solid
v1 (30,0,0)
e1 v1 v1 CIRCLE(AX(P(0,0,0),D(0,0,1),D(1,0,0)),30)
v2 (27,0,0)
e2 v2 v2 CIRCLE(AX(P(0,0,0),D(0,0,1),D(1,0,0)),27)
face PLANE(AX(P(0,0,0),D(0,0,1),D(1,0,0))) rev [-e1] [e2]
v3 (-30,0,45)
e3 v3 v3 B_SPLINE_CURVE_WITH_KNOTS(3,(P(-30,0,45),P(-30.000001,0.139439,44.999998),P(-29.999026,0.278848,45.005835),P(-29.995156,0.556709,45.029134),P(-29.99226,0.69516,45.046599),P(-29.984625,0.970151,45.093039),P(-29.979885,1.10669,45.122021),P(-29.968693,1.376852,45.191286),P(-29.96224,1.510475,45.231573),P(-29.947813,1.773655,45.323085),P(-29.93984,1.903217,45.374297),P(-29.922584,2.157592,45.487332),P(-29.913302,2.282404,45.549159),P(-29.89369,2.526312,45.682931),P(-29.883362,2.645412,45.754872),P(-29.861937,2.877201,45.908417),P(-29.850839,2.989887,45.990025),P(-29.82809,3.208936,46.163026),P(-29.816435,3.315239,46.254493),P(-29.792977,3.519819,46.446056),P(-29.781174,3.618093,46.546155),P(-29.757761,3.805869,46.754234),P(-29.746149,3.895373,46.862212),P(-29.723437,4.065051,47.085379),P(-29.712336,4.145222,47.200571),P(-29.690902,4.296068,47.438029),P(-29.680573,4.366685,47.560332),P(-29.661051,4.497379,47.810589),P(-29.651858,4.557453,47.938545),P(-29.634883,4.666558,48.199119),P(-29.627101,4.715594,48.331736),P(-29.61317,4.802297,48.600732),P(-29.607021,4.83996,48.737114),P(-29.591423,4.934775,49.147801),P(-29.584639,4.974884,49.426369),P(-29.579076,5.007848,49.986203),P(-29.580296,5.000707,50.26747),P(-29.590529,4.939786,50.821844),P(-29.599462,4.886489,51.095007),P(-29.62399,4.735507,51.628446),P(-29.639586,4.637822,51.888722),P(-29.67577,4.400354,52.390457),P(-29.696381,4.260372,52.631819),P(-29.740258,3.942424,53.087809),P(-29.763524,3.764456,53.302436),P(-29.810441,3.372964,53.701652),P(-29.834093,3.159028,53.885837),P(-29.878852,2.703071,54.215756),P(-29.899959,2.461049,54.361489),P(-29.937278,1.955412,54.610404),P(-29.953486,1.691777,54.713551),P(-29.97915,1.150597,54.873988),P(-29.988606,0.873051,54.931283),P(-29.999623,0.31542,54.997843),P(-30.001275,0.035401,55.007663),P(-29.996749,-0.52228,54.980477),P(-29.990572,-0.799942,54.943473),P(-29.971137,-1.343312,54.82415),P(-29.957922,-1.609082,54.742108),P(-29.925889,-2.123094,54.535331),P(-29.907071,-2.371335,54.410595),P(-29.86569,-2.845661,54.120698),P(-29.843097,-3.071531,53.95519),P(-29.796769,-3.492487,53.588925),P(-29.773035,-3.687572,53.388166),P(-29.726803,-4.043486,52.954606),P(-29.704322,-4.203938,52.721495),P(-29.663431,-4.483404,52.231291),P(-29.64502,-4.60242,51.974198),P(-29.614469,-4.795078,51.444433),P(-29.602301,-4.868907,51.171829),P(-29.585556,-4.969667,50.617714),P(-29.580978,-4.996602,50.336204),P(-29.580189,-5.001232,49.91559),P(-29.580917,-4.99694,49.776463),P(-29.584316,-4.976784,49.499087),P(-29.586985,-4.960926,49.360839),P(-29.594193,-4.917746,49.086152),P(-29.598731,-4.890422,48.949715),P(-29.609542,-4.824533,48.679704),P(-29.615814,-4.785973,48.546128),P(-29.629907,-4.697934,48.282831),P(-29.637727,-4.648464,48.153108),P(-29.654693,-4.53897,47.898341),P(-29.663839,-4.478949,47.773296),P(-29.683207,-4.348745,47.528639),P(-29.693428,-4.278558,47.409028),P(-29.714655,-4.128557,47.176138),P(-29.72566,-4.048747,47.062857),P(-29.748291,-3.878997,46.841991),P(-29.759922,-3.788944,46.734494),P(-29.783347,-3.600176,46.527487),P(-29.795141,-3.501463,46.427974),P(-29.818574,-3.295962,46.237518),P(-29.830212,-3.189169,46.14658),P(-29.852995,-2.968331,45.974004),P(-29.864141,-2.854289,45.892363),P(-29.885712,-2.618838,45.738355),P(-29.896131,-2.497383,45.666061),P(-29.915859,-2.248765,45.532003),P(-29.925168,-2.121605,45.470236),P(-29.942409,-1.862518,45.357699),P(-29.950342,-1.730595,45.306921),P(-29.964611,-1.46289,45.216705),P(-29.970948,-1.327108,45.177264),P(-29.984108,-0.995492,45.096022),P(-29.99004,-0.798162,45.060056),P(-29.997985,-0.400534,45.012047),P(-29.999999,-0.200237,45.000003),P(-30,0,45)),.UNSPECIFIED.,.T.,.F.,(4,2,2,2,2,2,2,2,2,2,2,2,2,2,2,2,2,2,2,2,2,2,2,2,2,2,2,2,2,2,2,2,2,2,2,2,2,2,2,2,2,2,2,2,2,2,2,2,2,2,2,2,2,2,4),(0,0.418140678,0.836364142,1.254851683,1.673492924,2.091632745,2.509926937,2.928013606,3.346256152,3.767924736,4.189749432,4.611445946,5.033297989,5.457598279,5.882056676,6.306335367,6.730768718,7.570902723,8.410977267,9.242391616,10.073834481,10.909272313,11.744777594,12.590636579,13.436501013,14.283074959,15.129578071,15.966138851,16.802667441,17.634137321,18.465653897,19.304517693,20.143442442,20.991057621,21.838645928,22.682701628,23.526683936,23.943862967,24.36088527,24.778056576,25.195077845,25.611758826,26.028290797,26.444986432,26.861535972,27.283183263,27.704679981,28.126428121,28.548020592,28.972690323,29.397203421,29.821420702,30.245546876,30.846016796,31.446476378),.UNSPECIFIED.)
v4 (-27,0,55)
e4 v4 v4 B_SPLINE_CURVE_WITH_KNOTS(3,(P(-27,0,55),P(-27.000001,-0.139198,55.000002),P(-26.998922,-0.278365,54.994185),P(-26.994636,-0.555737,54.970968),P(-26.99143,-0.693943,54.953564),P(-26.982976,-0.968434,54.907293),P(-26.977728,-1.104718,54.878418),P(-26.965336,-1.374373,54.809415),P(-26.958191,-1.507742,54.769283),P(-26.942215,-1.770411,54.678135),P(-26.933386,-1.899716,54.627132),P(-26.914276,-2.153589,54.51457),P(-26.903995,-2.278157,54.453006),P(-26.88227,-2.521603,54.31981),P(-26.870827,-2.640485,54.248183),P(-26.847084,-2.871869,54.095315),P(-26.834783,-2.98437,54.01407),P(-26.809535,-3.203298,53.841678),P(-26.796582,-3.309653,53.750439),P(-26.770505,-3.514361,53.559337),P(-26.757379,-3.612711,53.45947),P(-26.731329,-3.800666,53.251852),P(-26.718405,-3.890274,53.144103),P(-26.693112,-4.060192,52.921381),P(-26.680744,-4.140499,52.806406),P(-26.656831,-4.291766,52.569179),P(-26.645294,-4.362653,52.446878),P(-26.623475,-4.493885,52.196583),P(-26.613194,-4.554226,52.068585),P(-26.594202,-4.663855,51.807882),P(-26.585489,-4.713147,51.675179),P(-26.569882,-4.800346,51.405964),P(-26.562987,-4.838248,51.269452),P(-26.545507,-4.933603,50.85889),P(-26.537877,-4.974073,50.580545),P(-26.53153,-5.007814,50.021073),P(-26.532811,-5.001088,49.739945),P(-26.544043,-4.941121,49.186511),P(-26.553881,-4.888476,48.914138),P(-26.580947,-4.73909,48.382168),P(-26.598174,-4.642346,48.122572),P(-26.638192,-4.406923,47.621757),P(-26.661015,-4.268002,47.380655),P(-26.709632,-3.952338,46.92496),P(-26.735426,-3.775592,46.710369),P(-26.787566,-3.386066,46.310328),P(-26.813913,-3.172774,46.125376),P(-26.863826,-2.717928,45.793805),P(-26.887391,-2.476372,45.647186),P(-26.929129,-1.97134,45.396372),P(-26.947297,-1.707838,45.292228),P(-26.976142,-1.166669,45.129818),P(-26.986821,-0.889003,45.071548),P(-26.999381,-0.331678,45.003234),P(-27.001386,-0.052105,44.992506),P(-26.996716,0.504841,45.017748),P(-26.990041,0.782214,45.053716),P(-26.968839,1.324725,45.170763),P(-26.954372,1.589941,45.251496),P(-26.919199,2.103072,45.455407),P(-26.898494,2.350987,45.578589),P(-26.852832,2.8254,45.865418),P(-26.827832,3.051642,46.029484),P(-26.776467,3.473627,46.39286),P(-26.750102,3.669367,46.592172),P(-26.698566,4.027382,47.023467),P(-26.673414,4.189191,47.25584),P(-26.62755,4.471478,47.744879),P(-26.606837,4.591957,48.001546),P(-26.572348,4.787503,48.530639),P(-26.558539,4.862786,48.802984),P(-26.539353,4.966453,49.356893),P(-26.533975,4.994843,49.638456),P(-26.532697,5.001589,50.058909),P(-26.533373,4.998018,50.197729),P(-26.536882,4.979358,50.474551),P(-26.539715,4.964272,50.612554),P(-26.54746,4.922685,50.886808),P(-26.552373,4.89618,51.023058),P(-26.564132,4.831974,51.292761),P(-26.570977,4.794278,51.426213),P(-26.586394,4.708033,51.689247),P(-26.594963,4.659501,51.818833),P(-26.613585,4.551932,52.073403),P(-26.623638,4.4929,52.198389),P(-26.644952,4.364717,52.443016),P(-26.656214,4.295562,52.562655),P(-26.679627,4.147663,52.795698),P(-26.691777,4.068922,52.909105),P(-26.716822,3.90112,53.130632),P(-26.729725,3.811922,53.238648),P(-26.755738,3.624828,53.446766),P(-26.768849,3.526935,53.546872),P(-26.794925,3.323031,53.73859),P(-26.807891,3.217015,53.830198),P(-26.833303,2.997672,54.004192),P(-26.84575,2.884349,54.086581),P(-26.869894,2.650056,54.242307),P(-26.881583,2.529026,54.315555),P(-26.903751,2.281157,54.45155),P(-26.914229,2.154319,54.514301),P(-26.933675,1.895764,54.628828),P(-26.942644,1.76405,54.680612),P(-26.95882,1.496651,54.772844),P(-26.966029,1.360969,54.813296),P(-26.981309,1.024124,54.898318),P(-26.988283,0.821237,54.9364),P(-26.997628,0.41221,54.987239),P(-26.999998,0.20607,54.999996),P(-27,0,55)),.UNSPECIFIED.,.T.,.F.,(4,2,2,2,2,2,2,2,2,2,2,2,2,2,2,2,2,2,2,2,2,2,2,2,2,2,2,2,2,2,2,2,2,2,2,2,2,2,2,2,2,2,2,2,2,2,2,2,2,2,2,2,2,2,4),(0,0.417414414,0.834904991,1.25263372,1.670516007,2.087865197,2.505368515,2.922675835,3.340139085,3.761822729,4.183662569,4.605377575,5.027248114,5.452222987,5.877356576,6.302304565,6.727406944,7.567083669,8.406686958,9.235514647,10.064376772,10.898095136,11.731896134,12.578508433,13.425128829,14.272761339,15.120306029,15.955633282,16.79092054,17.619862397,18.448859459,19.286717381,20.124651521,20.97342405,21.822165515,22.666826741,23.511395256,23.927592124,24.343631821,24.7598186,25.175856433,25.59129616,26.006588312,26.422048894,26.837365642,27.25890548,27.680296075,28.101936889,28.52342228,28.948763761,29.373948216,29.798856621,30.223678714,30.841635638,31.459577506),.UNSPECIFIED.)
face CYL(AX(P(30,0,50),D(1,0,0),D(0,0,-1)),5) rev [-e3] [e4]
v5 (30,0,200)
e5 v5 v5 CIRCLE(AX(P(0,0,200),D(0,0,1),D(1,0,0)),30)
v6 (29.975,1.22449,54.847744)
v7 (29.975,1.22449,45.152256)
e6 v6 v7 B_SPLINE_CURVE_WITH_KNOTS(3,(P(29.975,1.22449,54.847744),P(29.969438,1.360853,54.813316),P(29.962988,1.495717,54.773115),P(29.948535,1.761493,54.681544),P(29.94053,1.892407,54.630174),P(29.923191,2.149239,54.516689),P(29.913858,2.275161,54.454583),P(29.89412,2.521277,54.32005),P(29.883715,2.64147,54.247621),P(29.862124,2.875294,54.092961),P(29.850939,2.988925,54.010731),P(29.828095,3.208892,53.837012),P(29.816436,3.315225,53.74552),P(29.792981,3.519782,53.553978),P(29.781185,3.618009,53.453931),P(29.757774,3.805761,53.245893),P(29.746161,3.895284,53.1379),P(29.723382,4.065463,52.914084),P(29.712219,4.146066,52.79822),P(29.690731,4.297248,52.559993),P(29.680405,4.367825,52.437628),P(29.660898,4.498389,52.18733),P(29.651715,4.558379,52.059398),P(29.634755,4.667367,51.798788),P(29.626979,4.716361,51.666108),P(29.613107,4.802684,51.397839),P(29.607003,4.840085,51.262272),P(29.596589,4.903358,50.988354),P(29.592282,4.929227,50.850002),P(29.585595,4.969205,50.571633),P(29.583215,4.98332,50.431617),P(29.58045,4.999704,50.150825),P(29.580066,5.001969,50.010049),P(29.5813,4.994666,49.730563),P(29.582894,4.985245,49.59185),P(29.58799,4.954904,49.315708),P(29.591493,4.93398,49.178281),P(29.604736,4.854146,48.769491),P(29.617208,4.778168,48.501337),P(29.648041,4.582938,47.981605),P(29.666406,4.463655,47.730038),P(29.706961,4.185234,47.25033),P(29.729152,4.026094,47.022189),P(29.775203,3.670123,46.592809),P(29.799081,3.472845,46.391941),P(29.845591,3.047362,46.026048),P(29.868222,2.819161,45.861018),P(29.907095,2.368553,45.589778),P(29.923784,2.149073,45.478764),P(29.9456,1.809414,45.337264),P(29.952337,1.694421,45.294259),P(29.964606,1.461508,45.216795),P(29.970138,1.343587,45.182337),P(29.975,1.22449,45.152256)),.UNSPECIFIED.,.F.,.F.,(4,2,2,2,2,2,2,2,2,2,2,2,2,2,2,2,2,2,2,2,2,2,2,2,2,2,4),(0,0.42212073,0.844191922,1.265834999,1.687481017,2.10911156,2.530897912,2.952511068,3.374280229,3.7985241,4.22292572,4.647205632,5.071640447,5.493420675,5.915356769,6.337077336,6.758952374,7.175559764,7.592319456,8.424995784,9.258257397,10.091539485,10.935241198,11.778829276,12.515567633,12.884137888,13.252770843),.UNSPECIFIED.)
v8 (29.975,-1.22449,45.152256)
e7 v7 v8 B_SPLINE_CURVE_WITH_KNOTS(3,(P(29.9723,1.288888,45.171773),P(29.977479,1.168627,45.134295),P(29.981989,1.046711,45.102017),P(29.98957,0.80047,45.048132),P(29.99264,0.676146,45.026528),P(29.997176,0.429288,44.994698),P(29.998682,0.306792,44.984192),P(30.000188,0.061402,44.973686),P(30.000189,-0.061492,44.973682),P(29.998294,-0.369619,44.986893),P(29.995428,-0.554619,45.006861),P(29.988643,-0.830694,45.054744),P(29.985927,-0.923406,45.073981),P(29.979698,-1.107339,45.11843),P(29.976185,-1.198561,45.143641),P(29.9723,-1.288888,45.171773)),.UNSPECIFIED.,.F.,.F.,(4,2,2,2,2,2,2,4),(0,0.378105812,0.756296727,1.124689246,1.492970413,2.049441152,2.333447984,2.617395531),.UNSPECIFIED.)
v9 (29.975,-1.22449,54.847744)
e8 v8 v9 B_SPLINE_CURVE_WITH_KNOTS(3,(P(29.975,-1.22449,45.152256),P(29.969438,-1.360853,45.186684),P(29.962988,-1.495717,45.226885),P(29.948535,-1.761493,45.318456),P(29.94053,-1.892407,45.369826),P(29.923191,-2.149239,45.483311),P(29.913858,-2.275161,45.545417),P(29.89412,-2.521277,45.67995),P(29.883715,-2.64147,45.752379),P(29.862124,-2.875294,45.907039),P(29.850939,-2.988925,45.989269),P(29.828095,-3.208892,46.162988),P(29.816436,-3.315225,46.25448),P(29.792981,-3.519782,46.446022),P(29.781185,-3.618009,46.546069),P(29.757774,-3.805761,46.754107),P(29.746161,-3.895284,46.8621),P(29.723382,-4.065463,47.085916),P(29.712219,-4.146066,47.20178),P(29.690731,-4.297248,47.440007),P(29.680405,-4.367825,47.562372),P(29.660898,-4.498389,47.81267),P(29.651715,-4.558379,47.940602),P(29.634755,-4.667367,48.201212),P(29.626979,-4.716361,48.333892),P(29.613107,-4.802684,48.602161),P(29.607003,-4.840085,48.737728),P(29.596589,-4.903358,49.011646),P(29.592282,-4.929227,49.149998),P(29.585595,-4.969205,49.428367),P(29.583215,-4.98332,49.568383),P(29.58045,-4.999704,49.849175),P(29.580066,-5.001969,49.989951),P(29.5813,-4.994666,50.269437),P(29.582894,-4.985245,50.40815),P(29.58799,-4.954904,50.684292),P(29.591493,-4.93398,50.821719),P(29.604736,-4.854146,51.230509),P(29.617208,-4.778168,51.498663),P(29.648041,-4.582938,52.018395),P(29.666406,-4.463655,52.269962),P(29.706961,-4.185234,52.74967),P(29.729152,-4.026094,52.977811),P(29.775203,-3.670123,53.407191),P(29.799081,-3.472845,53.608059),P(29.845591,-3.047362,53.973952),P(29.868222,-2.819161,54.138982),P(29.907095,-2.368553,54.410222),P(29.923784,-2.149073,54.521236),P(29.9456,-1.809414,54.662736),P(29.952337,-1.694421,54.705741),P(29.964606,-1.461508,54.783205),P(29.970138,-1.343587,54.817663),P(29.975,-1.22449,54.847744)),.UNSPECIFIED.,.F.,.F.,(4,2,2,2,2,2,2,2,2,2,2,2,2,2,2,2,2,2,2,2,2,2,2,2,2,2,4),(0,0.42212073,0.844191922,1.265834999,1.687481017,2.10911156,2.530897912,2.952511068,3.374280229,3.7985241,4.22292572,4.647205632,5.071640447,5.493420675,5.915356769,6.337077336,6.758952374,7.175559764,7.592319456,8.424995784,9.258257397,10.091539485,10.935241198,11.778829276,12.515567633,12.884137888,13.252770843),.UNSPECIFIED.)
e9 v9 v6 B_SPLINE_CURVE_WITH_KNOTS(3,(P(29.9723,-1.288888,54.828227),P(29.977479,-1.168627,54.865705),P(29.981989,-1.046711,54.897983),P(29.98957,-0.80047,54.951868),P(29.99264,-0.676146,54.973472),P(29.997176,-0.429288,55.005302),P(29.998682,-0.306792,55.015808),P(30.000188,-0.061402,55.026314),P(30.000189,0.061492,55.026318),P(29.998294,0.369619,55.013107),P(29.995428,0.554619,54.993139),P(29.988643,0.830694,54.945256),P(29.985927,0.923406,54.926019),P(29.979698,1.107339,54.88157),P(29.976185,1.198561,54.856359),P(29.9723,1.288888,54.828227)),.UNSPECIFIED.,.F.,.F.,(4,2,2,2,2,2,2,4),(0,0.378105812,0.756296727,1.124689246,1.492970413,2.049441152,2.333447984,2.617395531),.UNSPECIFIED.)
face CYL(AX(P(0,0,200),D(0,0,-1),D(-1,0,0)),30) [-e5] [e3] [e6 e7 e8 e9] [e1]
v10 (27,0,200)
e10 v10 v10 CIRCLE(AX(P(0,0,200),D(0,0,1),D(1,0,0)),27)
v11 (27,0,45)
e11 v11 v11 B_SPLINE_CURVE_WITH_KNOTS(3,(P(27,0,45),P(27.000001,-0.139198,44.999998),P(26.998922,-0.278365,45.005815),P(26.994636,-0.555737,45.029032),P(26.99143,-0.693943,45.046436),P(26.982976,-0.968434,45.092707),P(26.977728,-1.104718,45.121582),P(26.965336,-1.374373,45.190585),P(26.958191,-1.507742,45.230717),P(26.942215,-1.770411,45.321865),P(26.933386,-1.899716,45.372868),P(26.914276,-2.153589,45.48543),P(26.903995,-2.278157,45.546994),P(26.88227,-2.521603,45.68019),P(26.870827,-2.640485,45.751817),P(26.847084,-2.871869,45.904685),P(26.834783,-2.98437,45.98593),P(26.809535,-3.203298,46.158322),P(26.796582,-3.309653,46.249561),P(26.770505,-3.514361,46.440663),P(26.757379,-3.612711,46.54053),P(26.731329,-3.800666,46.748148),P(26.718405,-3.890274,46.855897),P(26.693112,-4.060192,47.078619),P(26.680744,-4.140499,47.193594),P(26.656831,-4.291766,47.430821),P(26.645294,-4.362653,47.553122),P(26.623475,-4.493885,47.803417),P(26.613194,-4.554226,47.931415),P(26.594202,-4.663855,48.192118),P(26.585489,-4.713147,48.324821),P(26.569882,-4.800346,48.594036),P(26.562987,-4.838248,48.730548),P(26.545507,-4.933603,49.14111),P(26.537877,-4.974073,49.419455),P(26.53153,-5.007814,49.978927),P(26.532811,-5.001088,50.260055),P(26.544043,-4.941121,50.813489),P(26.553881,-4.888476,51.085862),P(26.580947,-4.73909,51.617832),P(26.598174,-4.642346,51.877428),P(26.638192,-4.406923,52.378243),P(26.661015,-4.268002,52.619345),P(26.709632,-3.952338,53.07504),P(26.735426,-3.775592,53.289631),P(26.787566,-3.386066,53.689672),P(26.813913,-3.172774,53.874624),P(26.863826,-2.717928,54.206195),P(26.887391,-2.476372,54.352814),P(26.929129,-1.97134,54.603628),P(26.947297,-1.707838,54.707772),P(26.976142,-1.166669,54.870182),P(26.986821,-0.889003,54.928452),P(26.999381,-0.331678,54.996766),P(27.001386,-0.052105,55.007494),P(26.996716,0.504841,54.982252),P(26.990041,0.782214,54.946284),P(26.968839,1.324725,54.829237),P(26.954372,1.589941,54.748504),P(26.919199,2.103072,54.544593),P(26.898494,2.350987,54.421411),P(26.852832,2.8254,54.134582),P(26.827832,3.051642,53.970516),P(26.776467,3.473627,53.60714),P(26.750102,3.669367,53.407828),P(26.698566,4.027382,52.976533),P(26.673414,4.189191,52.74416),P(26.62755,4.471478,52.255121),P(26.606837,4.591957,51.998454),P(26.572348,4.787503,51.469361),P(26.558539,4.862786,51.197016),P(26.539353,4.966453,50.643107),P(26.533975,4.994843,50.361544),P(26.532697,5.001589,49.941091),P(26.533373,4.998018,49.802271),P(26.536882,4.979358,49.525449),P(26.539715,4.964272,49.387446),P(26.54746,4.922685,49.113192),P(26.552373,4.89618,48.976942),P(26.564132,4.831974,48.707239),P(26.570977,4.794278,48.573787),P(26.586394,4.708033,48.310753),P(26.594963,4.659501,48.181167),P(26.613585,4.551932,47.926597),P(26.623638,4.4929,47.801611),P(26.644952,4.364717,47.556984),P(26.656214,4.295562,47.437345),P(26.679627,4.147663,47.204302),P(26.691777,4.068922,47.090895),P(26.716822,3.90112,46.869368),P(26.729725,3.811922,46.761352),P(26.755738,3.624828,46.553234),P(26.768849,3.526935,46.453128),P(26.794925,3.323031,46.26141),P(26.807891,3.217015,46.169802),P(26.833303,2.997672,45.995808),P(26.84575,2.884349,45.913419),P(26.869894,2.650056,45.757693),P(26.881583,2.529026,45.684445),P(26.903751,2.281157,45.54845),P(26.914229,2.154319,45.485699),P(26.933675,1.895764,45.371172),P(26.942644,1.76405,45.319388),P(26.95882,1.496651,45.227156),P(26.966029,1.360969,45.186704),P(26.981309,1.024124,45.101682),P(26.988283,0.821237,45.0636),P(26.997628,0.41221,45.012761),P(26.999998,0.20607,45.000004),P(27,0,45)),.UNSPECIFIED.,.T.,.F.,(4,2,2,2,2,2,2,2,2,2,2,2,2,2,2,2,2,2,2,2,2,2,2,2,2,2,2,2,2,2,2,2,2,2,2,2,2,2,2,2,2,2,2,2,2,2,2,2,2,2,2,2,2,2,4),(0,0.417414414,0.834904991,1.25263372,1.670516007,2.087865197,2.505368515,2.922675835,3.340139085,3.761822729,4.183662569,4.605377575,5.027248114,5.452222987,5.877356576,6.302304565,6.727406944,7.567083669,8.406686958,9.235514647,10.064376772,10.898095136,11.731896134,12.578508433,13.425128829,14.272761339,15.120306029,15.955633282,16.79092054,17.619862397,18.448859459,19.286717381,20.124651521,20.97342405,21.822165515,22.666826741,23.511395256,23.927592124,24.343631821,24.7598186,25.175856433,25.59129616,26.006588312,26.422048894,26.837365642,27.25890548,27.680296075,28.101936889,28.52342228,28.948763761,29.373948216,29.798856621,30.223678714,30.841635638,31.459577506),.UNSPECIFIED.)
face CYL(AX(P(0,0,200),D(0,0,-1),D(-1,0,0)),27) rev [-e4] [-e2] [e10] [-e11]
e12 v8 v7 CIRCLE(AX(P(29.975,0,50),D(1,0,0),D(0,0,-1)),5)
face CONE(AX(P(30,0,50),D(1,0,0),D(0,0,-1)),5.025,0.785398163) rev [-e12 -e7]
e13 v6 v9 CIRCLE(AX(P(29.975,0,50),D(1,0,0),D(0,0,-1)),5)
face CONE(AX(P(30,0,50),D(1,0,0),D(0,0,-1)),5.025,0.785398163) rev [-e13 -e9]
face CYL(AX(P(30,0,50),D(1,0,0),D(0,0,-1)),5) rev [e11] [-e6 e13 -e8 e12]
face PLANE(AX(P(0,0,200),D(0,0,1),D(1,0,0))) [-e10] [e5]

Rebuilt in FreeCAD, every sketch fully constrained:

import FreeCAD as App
import Part
import Sketcher
from FreeCAD import Vector
Q = App.Units.Quantity

doc = App.newDocument("Part")
body = doc.addObject("PartDesign::Body", "Body")

sketch1 = body.newObject("Sketcher::SketchObject", "Sketch")
sketch1.AttachmentSupport = (doc.getObject("XY_Plane"), [""])
sketch1.MapMode = "FlatFace"
sketch1.addGeometry([
    Part.Circle(Vector(0, 0, 0), Vector(0, 0, 1), 30),
    Part.Circle(Vector(0, 0, 0), Vector(0, 0, 1), 27),
], False)
sketch1.addConstraint([
    Sketcher.Constraint("Coincident", 0, 3, -1, 1),
    Sketcher.Constraint("Coincident", 1, 3, -1, 1),
    Sketcher.Constraint("Diameter", 0, Q("60 mm")),
    Sketcher.Constraint("Diameter", 1, Q("54 mm")),
])
pad1 = body.newObject("PartDesign::Pad", "Pad")
pad1.Profile = sketch1
pad1.Length = 200

sketch2 = body.newObject("Sketcher::SketchObject", "Sketch001")
sketch2.AttachmentSupport = (doc.getObject("YZ_Plane"), [""])
sketch2.MapMode = "FlatFace"
sketch2.AttachmentOffset = App.Placement(Vector(0, 0, 30), App.Rotation())
sketch2.addGeometry(Part.Circle(Vector(0, 50, 0), Vector(0, 0, 1), 5), False)
sketch2.addConstraint([
    Sketcher.Constraint("PointOnObject", 0, 3, -2),
    Sketcher.Constraint("Diameter", 0, Q("10 mm")),
    Sketcher.Constraint("DistanceY", -1, 1, 0, 3, Q("50 mm")),
])
doc.recompute()
hole = body.newObject("PartDesign::Hole", "Hole")
hole.Profile = sketch2
hole.ThreadType = "None"
hole.Diameter = 10
hole.DepthType = "ThroughAll"
hole.HoleCutType = "Countersink"
hole.HoleCutDiameter = 10.05
hole.HoleCutCountersinkAngle = 90

doc.recompute()
